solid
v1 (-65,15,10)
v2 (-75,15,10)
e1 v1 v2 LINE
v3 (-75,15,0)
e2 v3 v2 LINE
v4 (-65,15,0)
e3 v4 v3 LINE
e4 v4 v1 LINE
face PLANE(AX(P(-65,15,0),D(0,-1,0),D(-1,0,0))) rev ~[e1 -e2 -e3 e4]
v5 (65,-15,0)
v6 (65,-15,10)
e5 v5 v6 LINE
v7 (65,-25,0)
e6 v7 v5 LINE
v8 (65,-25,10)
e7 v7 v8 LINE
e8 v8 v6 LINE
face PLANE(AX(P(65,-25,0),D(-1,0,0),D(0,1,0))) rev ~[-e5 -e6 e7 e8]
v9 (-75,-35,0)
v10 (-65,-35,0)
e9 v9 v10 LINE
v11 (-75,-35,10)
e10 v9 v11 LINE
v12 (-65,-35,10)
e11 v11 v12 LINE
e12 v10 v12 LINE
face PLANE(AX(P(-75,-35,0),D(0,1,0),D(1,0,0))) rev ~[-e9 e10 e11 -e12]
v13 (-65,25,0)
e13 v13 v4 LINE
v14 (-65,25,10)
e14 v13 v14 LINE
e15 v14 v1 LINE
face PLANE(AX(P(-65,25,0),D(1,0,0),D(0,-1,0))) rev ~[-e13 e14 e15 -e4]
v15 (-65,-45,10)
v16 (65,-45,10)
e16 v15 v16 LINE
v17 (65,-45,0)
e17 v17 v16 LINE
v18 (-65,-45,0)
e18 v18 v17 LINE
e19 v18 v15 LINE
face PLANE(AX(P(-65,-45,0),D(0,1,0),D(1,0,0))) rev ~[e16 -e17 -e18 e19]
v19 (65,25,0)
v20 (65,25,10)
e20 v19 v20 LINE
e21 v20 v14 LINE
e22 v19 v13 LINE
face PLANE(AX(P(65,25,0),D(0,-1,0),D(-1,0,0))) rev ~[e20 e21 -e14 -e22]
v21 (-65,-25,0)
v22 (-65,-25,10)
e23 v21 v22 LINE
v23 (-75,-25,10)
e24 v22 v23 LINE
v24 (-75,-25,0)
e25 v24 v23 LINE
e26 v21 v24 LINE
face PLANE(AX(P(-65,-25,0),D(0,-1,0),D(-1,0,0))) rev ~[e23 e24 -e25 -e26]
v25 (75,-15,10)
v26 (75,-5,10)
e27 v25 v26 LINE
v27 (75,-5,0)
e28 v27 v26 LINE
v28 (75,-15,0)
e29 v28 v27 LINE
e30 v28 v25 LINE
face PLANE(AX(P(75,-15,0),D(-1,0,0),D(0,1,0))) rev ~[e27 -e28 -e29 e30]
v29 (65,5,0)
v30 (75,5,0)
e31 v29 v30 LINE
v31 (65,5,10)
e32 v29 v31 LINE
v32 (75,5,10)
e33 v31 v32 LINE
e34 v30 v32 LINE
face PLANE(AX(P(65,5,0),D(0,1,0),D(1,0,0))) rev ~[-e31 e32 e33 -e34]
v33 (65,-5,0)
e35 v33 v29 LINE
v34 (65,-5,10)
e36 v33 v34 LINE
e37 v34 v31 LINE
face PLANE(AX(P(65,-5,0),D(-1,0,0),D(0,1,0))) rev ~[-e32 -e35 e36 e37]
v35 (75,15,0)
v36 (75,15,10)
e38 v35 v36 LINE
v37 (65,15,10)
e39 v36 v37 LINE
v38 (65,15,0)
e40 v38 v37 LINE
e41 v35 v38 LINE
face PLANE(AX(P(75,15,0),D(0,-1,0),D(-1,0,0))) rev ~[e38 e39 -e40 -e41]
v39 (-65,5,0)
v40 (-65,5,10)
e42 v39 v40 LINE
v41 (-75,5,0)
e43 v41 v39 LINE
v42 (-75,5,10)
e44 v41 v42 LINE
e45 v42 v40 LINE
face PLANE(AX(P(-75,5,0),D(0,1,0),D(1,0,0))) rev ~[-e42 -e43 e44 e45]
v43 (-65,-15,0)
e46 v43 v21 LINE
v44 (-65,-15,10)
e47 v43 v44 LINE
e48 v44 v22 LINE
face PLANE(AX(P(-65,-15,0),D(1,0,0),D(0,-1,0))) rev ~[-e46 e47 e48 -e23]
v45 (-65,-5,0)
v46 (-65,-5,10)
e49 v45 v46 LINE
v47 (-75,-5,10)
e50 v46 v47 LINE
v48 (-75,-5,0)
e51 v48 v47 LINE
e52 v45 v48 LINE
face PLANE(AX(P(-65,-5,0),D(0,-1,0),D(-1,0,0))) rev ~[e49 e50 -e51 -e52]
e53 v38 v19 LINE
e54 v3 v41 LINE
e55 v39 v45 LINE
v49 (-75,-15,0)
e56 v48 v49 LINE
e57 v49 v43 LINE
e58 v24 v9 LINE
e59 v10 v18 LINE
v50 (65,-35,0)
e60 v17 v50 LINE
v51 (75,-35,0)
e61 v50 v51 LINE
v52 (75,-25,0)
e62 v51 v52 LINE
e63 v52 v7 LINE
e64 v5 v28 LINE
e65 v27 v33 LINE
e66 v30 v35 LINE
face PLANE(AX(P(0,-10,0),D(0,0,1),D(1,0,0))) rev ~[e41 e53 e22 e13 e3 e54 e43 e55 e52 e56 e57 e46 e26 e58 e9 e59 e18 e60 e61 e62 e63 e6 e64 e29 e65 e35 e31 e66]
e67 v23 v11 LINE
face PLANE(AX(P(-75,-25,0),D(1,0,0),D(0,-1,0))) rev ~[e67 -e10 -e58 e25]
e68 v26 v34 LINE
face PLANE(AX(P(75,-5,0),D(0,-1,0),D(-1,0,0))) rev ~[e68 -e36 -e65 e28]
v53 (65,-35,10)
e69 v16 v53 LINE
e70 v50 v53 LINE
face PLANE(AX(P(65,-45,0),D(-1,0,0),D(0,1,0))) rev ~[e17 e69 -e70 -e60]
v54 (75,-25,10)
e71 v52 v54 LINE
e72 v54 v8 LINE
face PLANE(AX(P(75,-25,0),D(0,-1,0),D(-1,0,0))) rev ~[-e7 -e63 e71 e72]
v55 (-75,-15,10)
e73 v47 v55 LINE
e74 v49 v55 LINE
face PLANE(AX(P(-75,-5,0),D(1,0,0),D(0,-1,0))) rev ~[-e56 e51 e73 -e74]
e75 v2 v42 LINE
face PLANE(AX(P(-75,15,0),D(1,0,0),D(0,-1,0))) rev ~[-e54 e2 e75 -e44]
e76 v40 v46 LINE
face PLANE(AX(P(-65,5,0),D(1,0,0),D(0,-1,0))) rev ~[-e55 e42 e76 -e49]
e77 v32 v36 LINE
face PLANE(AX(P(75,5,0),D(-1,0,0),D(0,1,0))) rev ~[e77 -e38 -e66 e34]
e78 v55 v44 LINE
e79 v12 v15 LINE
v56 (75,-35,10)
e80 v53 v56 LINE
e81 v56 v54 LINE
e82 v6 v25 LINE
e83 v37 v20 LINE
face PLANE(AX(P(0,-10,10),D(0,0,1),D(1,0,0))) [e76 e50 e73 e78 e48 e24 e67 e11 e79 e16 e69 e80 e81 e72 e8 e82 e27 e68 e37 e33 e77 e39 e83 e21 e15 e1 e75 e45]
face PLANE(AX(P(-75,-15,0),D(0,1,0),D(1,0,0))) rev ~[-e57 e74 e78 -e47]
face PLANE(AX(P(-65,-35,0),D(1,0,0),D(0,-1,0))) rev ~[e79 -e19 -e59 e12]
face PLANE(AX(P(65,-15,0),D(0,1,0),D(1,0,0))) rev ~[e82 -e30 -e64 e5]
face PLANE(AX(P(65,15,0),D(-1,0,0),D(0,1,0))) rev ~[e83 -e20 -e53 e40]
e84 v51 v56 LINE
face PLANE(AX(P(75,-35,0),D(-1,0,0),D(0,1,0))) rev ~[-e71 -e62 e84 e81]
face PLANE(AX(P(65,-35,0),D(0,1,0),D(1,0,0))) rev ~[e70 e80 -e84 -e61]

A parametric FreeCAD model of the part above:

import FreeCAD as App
import Part
import Sketcher
from FreeCAD import Vector


def add_polygon(sketch, points):
    """Adds a closed chain of lines whose ends are joined by coincident constraints."""
    first, n = sketch.GeometryCount, len(points)
    for a, b in zip(points, points[1:] + points[:1]):
        sketch.addGeometry(Part.LineSegment(App.Vector(*a, 0), App.Vector(*b, 0)), False)
    for i in range(n):
        sketch.addConstraint(Sketcher.Constraint("Coincident", first + i, 2, first + (i + 1) % n, 1))

doc = App.newDocument("Part")
body = doc.addObject("PartDesign::Body", "Body")

sketch1 = body.newObject("Sketcher::SketchObject", "Sketch")
sketch1.AttachmentSupport = (doc.getObject("XY_Plane"), [""])
sketch1.MapMode = "FlatFace"
add_polygon(sketch1, [(65, -45), (65, -35), (75, -35), (75, -25), (65, -25), (65, -15), (75, -15), (75, -5), (65, -5), (65, 5), (75, 5), (75, 15), (65, 15), (65, 25), (-65, 25), (-65, 15), (-75, 15), (-75, 5), (-65, 5), (-65, -5), (-75, -5), (-75, -15), (-65, -15), (-65, -25), (-75, -25), (-75, -35), (-65, -35), (-65, -45)])
sketch1.addConstraint(Sketcher.Constraint("Vertical", 0))
sketch1.addConstraint(Sketcher.Constraint("Horizontal", 1))
sketch1.addConstraint(Sketcher.Constraint("Vertical", 2))
sketch1.addConstraint(Sketcher.Constraint("Horizontal", 3))
sketch1.addConstraint(Sketcher.Constraint("Vertical", 4))
sketch1.addConstraint(Sketcher.Constraint("Horizontal", 5))
sketch1.addConstraint(Sketcher.Constraint("Vertical", 6))
sketch1.addConstraint(Sketcher.Constraint("Horizontal", 7))
sketch1.addConstraint(Sketcher.Constraint("Vertical", 8))
sketch1.addConstraint(Sketcher.Constraint("Horizontal", 9))
sketch1.addConstraint(Sketcher.Constraint("Vertical", 10))
sketch1.addConstraint(Sketcher.Constraint("Horizontal", 11))
sketch1.addConstraint(Sketcher.Constraint("Vertical", 12))
sketch1.addConstraint(Sketcher.Constraint("Horizontal", 13))
sketch1.addConstraint(Sketcher.Constraint("Vertical", 14))
sketch1.addConstraint(Sketcher.Constraint("Horizontal", 15))
sketch1.addConstraint(Sketcher.Constraint("Vertical", 16))
sketch1.addConstraint(Sketcher.Constraint("Horizontal", 17))
sketch1.addConstraint(Sketcher.Constraint("Vertical", 18))
sketch1.addConstraint(Sketcher.Constraint("Horizontal", 19))
sketch1.addConstraint(Sketcher.Constraint("Vertical", 20))
sketch1.addConstraint(Sketcher.Constraint("Horizontal", 21))
sketch1.addConstraint(Sketcher.Constraint("Vertical", 22))
sketch1.addConstraint(Sketcher.Constraint("Horizontal", 23))
sketch1.addConstraint(Sketcher.Constraint("Vertical", 24))
sketch1.addConstraint(Sketcher.Constraint("Horizontal", 25))
sketch1.addConstraint(Sketcher.Constraint("Vertical", 26))
sketch1.addConstraint(Sketcher.Constraint("Horizontal", 27))
sketch1.addConstraint(Sketcher.Constraint("Symmetric", 3, 2, 13, 2, -1, 1))
sketch1.addConstraint(Sketcher.Constraint("Symmetric", 5, 2, 15, 2, -1, 1))
sketch1.addConstraint(Sketcher.Constraint("Symmetric", 7, 2, 17, 2, -1, 1))
sketch1.addConstraint(Sketcher.Constraint("Symmetric", 9, 2, 19, 2, -1, 1))
sketch1.addConstraint(Sketcher.Constraint("Symmetric", 11, 2, 21, 2, -1, 1))
sketch1.addConstraint(Sketcher.Constraint("Symmetric", 11, 2, 14, 2, -2))
sketch1.addConstraint(Sketcher.Constraint("Symmetric", 9, 2, 16, 2, -2))
sketch1.addConstraint(Sketcher.Constraint("Symmetric", 2, 2, 23, 2, -2))
sketch1.addConstraint(Sketcher.Constraint("Symmetric", 0, 2, 25, 2, -2))
sketch1.addConstraint(Sketcher.Constraint("Vertical", 0, 2, 3, 2))
sketch1.addConstraint(Sketcher.Constraint("Vertical", 2, 2, 5, 2))
sketch1.addConstraint(Sketcher.Constraint("Vertical", 4, 2, 7, 2))
sketch1.addConstraint(Sketcher.Constraint("Equal", 25, 0))
sketch1.addConstraint(Sketcher.Constraint("Equal", 0, 2))
sketch1.addConstraint(Sketcher.Constraint("Equal", 2, 4))
sketch1.addConstraint(Sketcher.Constraint("Equal", 4, 6))
sketch1.addConstraint(Sketcher.Constraint("Equal", 6, 8))
sketch1.addConstraint(Sketcher.Constraint("DistanceX", 1, 1, 1, 2, 10.0))
sketch1.addConstraint(Sketcher.Constraint("DistanceX", 13, 2, 13, 1, 130.0))
pad1 = body.newObject("PartDesign::Pad", "Pad")
pad1.Profile = sketch1
pad1.Length = 10

doc.recompute()
